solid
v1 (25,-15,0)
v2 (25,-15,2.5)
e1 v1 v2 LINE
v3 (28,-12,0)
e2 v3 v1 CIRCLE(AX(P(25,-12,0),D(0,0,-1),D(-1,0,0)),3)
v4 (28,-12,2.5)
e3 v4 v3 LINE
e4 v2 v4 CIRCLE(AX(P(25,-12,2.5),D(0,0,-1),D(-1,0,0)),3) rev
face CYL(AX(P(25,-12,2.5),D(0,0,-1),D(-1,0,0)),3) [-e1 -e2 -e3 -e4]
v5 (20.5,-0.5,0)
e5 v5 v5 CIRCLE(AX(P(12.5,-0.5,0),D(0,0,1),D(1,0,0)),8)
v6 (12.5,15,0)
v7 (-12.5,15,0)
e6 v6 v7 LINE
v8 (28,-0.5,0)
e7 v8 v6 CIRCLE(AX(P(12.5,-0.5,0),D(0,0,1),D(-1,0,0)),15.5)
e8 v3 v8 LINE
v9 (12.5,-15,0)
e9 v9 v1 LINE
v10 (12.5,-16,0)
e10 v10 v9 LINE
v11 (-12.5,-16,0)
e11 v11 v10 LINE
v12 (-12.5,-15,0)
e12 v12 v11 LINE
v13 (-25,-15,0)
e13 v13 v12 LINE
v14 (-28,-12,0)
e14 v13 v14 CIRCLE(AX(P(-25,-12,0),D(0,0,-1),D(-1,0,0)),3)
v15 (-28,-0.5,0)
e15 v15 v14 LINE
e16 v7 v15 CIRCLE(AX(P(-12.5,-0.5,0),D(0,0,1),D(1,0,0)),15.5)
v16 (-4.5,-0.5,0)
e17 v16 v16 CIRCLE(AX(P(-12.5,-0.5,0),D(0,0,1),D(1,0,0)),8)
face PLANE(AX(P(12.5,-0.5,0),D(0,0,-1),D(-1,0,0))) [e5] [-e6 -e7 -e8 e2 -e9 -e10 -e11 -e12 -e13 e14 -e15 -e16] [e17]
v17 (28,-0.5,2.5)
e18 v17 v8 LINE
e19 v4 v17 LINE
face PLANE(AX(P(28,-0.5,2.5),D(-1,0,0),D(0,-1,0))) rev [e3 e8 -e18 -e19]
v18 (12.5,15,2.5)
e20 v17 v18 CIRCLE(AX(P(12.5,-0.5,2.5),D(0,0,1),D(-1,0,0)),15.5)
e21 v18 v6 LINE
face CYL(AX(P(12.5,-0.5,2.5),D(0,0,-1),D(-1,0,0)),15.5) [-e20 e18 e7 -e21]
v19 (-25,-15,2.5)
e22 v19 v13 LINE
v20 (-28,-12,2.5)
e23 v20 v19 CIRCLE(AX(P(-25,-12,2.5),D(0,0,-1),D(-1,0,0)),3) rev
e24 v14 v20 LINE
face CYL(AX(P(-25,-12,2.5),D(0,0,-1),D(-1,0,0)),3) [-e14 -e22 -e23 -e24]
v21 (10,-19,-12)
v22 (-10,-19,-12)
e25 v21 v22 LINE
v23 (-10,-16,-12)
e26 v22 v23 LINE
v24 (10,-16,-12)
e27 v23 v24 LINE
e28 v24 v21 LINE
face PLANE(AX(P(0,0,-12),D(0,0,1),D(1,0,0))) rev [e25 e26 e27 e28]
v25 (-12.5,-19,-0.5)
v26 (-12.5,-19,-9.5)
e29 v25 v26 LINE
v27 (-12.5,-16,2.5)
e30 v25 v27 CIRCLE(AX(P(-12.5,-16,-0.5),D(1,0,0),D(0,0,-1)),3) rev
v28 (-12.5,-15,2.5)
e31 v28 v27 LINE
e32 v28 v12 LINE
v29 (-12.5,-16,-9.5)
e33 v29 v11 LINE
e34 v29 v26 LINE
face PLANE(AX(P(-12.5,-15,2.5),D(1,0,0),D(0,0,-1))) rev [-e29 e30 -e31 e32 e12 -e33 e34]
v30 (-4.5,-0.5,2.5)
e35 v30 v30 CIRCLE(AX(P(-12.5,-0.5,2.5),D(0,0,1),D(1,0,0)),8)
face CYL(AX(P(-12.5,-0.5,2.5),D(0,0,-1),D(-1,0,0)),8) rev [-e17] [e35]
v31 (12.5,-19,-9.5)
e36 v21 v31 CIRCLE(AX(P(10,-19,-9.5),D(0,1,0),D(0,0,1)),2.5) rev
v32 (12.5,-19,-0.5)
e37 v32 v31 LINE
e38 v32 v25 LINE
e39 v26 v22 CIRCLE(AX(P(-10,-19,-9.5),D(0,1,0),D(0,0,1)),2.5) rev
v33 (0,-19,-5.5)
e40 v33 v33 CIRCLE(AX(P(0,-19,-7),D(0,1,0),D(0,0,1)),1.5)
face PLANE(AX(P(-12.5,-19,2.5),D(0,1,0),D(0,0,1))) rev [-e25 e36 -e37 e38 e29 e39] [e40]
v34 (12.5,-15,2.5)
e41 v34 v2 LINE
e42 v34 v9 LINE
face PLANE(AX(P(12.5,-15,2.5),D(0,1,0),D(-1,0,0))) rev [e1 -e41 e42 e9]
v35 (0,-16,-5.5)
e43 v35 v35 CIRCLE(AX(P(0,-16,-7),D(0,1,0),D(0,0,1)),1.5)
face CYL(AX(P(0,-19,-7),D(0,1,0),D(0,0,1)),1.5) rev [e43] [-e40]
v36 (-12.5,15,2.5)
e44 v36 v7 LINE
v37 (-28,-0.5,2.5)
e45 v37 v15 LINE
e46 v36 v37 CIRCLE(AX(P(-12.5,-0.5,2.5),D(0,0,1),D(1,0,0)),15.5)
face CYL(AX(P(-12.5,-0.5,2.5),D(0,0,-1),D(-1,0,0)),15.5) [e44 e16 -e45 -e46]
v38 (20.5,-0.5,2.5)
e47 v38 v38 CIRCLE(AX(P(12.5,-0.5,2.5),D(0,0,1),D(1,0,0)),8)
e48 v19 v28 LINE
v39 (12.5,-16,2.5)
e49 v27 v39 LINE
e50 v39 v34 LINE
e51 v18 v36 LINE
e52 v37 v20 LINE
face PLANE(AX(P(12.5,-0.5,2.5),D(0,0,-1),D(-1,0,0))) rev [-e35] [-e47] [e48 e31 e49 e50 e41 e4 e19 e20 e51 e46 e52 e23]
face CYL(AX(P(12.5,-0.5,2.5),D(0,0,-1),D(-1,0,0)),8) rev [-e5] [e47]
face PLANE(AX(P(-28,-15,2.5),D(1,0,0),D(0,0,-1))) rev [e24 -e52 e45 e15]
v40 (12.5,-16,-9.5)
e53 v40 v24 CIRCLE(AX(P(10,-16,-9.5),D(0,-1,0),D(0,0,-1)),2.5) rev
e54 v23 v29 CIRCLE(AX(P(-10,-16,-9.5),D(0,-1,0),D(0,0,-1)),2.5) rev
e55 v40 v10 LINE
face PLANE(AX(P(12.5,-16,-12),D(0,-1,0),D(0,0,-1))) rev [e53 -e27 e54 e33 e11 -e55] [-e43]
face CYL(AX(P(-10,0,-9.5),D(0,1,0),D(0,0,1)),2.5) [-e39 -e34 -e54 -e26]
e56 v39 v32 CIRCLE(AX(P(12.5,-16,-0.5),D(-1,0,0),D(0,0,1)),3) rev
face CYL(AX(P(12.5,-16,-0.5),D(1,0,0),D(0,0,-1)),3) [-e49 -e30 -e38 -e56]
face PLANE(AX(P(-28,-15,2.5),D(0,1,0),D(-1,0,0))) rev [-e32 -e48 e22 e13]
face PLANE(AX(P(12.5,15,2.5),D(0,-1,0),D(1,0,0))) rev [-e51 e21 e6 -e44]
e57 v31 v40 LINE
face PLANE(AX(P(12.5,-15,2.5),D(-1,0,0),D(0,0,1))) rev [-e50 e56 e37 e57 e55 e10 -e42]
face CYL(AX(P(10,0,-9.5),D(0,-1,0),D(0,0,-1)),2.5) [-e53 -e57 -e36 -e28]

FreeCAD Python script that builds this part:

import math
import FreeCAD as App
import Part
import Sketcher

V = App.Vector


def edges_at(feature, points):
    """Names of the edges that pass closest to the given points."""
    edges = feature.Shape.Edges
    near = lambda p: min(range(len(edges)), key=lambda i: edges[i].distToShape(Part.Vertex(*p))[0])
    return sorted({f"Edge{near(p) + 1}" for p in points})

doc = App.newDocument("Part")
params = doc.addObject("Spreadsheet::Sheet", "Params")
for row, (alias, value) in enumerate([
    ("sketch1_diameter", "16 mm"),
    ("sketch1_radius", "15.5 mm"),
    ("sketch1_width", "25 mm"),
    ("sketch1_height", "4 mm"),
    ("sketch1_height2", "14.5 mm"),
    ("pad1_length", "2.5 mm"),
    ("fillet_radius", "3 mm"),
    ("sketch2_width", "25 mm"),
    ("sketch2_height", "3 mm"),
    ("pad2_length", "12 mm"),
    ("fillet2_radius", "2.5 mm"),
    ("fillet3_radius", "3 mm"),
    ("sketch3_diameter", "3 mm"),
], start=1):
    params.set(f"A{row}", alias)
    params.set(f"B{row}", "=" + value)
    params.setAlias(f"B{row}", alias)

body = doc.addObject("PartDesign::Body", "Body")

# Sketch on XY plane
sketch1 = body.newObject("Sketcher::SketchObject", "Sketch")
sketch1.AttachmentSupport = (doc.getObject("XY_Plane"), [""])
sketch1.MapMode = "FlatFace"
sketch1.addGeometry(Part.LineSegment(V(-28, -0.5, 0), V(-28, -15, 0)), False)
sketch1.addGeometry(Part.LineSegment(V(-28, -15, 0), V(-12.5, -15, 0)), False)
sketch1.addGeometry(Part.LineSegment(V(-12.5, -15, 0), V(-12.5, -19, 0)), False)
sketch1.addGeometry(Part.LineSegment(V(-12.5, -19, 0), V(12.5, -19, 0)), False)
sketch1.addGeometry(Part.LineSegment(V(12.5, -19, 0), V(12.5, -15, 0)), False)
sketch1.addGeometry(Part.LineSegment(V(12.5, -15, 0), V(28, -15, 0)), False)
sketch1.addGeometry(Part.LineSegment(V(28, -15, 0), V(28, -0.5, 0)), False)
sketch1.addGeometry(Part.ArcOfCircle(Part.Circle(V(12.5, -0.5, 0), V(0, 0, 1), 15.5), math.radians(0), math.radians(90)), False)
sketch1.addGeometry(Part.LineSegment(V(12.5, 15, 0), V(-12.5, 15, 0)), False)
sketch1.addGeometry(Part.ArcOfCircle(Part.Circle(V(-12.5, -0.5, 0), V(0, 0, 1), 15.5), math.radians(90), math.radians(180)), False)
sketch1.addGeometry(Part.Circle(V(12.5, -0.5, 0), V(0, 0, 1), 8), False)
sketch1.addGeometry(Part.Circle(V(-12.5, -0.5, 0), V(0, 0, 1), 8), False)
sketch1.addConstraint(Sketcher.Constraint("Coincident", 0, 2, 1, 1))
sketch1.addConstraint(Sketcher.Constraint("Coincident", 1, 2, 2, 1))
sketch1.addConstraint(Sketcher.Constraint("Coincident", 2, 2, 3, 1))
sketch1.addConstraint(Sketcher.Constraint("Coincident", 3, 2, 4, 1))
sketch1.addConstraint(Sketcher.Constraint("Coincident", 4, 2, 5, 1))
sketch1.addConstraint(Sketcher.Constraint("Coincident", 5, 2, 6, 1))
sketch1.addConstraint(Sketcher.Constraint("Tangent", 6, 2, 7, 1))
sketch1.addConstraint(Sketcher.Constraint("Tangent", 7, 2, 8, 1))
sketch1.addConstraint(Sketcher.Constraint("Tangent", 8, 2, 9, 1))
sketch1.addConstraint(Sketcher.Constraint("Tangent", 9, 2, 0, 1))
sketch1.addConstraint(Sketcher.Constraint("Vertical", 0))
sketch1.addConstraint(Sketcher.Constraint("Horizontal", 1))
sketch1.addConstraint(Sketcher.Constraint("Vertical", 2))
sketch1.addConstraint(Sketcher.Constraint("Horizontal", 3))
sketch1.addConstraint(Sketcher.Constraint("Vertical", 4))
sketch1.addConstraint(Sketcher.Constraint("Horizontal", 5))
sketch1.addConstraint(Sketcher.Constraint("Vertical", 6))
sketch1.addConstraint(Sketcher.Constraint("Horizontal", 8))
sketch1.addConstraint(Sketcher.Constraint("Coincident", 10, 3, 7, 3))
sketch1.addConstraint(Sketcher.Constraint("Coincident", 11, 3, 9, 3))
sketch1.addConstraint(Sketcher.Constraint("Equal", 7, 9))
sketch1.addConstraint(Sketcher.Constraint("Equal", 10, 11))
sketch1.addConstraint(Sketcher.Constraint("Symmetric", 1, 2, 7, 2, -1, 1))
sketch1.addConstraint(Sketcher.Constraint("Symmetric", 4, 2, 8, 2, -1, 1))
sketch1.addConstraint(Sketcher.Constraint("Vertical", 11, 3, 1, 2))
sketch1.addConstraint(Sketcher.Constraint("Diameter", 10, 16.0))
sketch1.addConstraint(Sketcher.Constraint("Radius", 7, 15.5))
sketch1.addConstraint(Sketcher.Constraint("DistanceX", 3, 1, 3, 2, 25.0))
sketch1.addConstraint(Sketcher.Constraint("DistanceY", 2, 2, 2, 1, 4.0))
sketch1.addConstraint(Sketcher.Constraint("DistanceY", 0, 2, 0, 1, 14.5))
sketch1.setExpression("Constraints[25]", "Params.sketch1_diameter")
sketch1.setExpression("Constraints[26]", "Params.sketch1_radius")
sketch1.setExpression("Constraints[27]", "Params.sketch1_width")
sketch1.setExpression("Constraints[28]", "Params.sketch1_height")
sketch1.setExpression("Constraints[29]", "Params.sketch1_height2")
pad1 = body.newObject("PartDesign::Pad", "Pad")
pad1.Profile = sketch1
pad1.setExpression("Length", "Params.pad1_length")
doc.recompute()

fillet = body.newObject("PartDesign::Fillet", "Fillet")
fillet.Base = (pad1, edges_at(pad1, [(-28, -15, 1.25), (28, -15, 1.25)]))
fillet.setExpression("Radius", "Params.fillet_radius")

# Sketch on XY plane
sketch2 = body.newObject("Sketcher::SketchObject", "Sketch001")
sketch2.AttachmentSupport = (doc.getObject("XY_Plane"), [""])
sketch2.MapMode = "FlatFace"
sketch2.addGeometry(Part.LineSegment(V(12.5, -16, 0), V(12.5, -19, 0)), False)
sketch2.addGeometry(Part.LineSegment(V(12.5, -19, 0), V(-12.5, -19, 0)), False)
sketch2.addGeometry(Part.LineSegment(V(-12.5, -19, 0), V(-12.5, -16, 0)), False)
sketch2.addGeometry(Part.LineSegment(V(-12.5, -16, 0), V(12.5, -16, 0)), False)
sketch2.addConstraint(Sketcher.Constraint("Coincident", 0, 2, 1, 1))
sketch2.addConstraint(Sketcher.Constraint("Coincident", 1, 2, 2, 1))
sketch2.addConstraint(Sketcher.Constraint("Coincident", 2, 2, 3, 1))
sketch2.addConstraint(Sketcher.Constraint("Coincident", 3, 2, 0, 1))
sketch2.addConstraint(Sketcher.Constraint("Vertical", 0))
sketch2.addConstraint(Sketcher.Constraint("Horizontal", 1))
sketch2.addConstraint(Sketcher.Constraint("Vertical", 2))
sketch2.addConstraint(Sketcher.Constraint("Horizontal", 3))
sketch2.addConstraint(Sketcher.Constraint("DistanceX", 1, 2, 1, 1, 25.0))
sketch2.addConstraint(Sketcher.Constraint("DistanceY", 0, 2, 0, 1, 3.0))
sketch2.addConstraint(Sketcher.Constraint("DistanceY", 0, 2, -1, 1, 19.0))
sketch2.addConstraint(Sketcher.Constraint("DistanceX", -1, 1, 0, 2, 12.5))
sketch2.setExpression("Constraints[8]", "Params.sketch2_width")
sketch2.setExpression("Constraints[9]", "Params.sketch2_height")
pad2 = body.newObject("PartDesign::Pad", "Pad001")
pad2.Profile = sketch2
pad2.setExpression("Length", "Params.pad2_length")
pad2.Reversed = True
doc.recompute()

fillet2 = body.newObject("PartDesign::Fillet", "Fillet001")
fillet2.Base = (pad2, edges_at(pad2, [(12.5, -17.5, -12), (-12.5, -17.5, -12)]))
fillet2.setExpression("Radius", "Params.fillet2_radius")
doc.recompute()

fillet3 = body.newObject("PartDesign::Fillet", "Fillet002")
fillet3.Base = (fillet2, edges_at(fillet2, [(0, -19, 2.5)]))
fillet3.setExpression("Radius", "Params.fillet3_radius")

# Sketch on XZ plane
sketch3 = body.newObject("Sketcher::SketchObject", "Sketch002")
sketch3.AttachmentSupport = (doc.getObject("XZ_Plane"), [""])
sketch3.MapMode = "FlatFace"
sketch3.AttachmentOffset = App.Placement(V(0, 0, 16), App.Rotation())
sketch3.addGeometry(Part.Circle(V(0, -7, 0), V(0, 0, 1), 1.5), False)
sketch3.addConstraint(Sketcher.Constraint("PointOnObject", 0, 3, -2))
sketch3.addConstraint(Sketcher.Constraint("Diameter", 0, 3.0))
sketch3.addConstraint(Sketcher.Constraint("DistanceY", 0, 3, -1, 1, 7.0))
sketch3.setExpression("Constraints[1]", "Params.sketch3_diameter")
pocket1 = body.newObject("PartDesign::Pocket", "Pocket")
pocket1.Profile = sketch3
pocket1.Type = "ThroughAll"
pocket1.Reversed = True

doc.recompute()
